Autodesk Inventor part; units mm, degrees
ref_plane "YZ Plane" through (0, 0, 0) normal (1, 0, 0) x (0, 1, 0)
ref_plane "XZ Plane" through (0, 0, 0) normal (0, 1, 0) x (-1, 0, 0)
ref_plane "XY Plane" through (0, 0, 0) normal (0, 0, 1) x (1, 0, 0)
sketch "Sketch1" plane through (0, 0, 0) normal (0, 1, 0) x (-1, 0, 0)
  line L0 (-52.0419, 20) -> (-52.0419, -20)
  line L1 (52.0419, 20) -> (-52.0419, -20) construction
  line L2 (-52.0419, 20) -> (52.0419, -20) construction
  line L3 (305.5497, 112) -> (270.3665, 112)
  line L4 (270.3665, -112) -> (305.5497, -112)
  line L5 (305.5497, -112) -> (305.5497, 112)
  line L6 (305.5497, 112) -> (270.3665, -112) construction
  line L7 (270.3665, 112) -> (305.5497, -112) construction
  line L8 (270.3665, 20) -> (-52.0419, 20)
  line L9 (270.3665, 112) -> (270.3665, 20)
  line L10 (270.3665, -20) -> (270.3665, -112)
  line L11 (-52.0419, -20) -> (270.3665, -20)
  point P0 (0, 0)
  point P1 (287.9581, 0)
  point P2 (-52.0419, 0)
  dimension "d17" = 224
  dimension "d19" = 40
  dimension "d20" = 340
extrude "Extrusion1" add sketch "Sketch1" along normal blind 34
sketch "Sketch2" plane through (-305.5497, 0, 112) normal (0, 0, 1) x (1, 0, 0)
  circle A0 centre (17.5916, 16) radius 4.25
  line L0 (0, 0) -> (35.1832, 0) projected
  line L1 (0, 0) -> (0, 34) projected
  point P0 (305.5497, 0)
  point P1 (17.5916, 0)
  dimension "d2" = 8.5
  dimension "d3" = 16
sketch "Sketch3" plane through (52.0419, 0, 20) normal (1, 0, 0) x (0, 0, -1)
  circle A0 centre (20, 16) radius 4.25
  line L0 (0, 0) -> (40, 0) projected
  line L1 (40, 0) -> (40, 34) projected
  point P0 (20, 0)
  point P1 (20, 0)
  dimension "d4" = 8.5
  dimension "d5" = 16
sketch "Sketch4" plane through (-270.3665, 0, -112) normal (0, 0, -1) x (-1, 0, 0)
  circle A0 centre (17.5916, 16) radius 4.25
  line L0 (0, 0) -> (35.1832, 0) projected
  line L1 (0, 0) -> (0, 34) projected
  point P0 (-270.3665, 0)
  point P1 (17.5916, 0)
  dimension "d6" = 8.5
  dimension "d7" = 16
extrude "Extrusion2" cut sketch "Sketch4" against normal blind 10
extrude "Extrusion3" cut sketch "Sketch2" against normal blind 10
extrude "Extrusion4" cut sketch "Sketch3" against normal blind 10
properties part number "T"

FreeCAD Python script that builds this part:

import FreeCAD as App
import Part
import Sketcher

V = App.Vector
Q = App.Units.Quantity

doc = App.newDocument("Part")
body = doc.addObject("PartDesign::Body", "Body")

sketch1 = body.newObject("Sketcher::SketchObject", "Sketch")
sketch1.AttachmentSupport = (doc.getObject("XZ_Plane"), [""])
sketch1.MapMode = "FlatFace"
sketch1.addGeometry([
    Part.LineSegment(V(-270.3665, 20, 0), V(52.0419, 20, 0)),
    Part.LineSegment(V(52.0419, 20, 0), V(52.0419, -20, 0)),
    Part.LineSegment(V(52.0419, -20, 0), V(-270.3665, -20, 0)),
    Part.LineSegment(V(-270.3665, -20, 0), V(-270.3665, -112, 0)),
    Part.LineSegment(V(-270.3665, -112, 0), V(-305.5497, -112, 0)),
    Part.LineSegment(V(-305.5497, -112, 0), V(-305.5497, 112, 0)),
    Part.LineSegment(V(-305.5497, 112, 0), V(-270.3665, 112, 0)),
    Part.LineSegment(V(-270.3665, 112, 0), V(-270.3665, 20, 0)),
], False)
sketch1.addConstraint([
    Sketcher.Constraint("Coincident", 0, 2, 1, 1),
    Sketcher.Constraint("Coincident", 1, 2, 2, 1),
    Sketcher.Constraint("Coincident", 2, 2, 3, 1),
    Sketcher.Constraint("Coincident", 3, 2, 4, 1),
    Sketcher.Constraint("Coincident", 4, 2, 5, 1),
    Sketcher.Constraint("Coincident", 5, 2, 6, 1),
    Sketcher.Constraint("Coincident", 6, 2, 7, 1),
    Sketcher.Constraint("Coincident", 7, 2, 0, 1),
    Sketcher.Constraint("Horizontal", 0),
    Sketcher.Constraint("Vertical", 1),
    Sketcher.Constraint("Horizontal", 2),
    Sketcher.Constraint("Vertical", 3),
    Sketcher.Constraint("Horizontal", 4),
    Sketcher.Constraint("Vertical", 5),
    Sketcher.Constraint("Horizontal", 6),
    Sketcher.Constraint("Vertical", 7),
    Sketcher.Constraint("Symmetric", 3, 2, 6, 2, -1),
    Sketcher.Constraint("Equal", 3, 7),
    Sketcher.Constraint("DistanceY", 1, 2, 1, 1, Q("40 mm")),
    Sketcher.Constraint("DistanceY", 5, 1, 5, 2, Q("224 mm")),
    Sketcher.Constraint("DistanceX", 0, 1, 0, 2, Q("322.4084 mm")),
    Sketcher.Constraint("DistanceX", 4, 2, 4, 1, Q("35.1832 mm")),
    Sketcher.Constraint("DistanceX", -1, 1, 0, 2, Q("52.042 mm")),
])
pad1 = body.newObject("PartDesign::Pad", "Pad")
pad1.Profile = sketch1
pad1.Length = 34
pad1.Reversed = True

sketch2 = body.newObject("Sketcher::SketchObject", "Sketch001")
sketch2.AttachmentSupport = (doc.getObject("XY_Plane"), [""])
sketch2.MapMode = "FlatFace"
sketch2.AttachmentOffset = App.Placement(V(0, 0, -112), App.Rotation())
sketch2.addGeometry(Part.Circle(V(-287.9581, 16, 0), V(0, 0, 1), 4.25), False)
sketch2.addConstraint([
    Sketcher.Constraint("Diameter", 0, Q("8.5 mm")),
    Sketcher.Constraint("DistanceY", -1, 1, 0, 3, Q("16 mm")),
    Sketcher.Constraint("DistanceX", 0, 3, -1, 1, Q("287.958 mm")),
])
pocket1 = body.newObject("PartDesign::Pocket", "Pocket")
pocket1.Profile = sketch2
pocket1.Length = 10
pocket1.Reversed = True

sketch3 = body.newObject("Sketcher::SketchObject", "Sketch002")
sketch3.AttachmentSupport = (doc.getObject("XY_Plane"), [""])
sketch3.MapMode = "FlatFace"
sketch3.AttachmentOffset = App.Placement(V(0, 0, 112), App.Rotation())
sketch3.addGeometry(Part.Circle(V(-287.9581, 16, 0), V(0, 0, 1), 4.25), False)
sketch3.addConstraint([
    Sketcher.Constraint("Diameter", 0, Q("8.5 mm")),
    Sketcher.Constraint("DistanceY", -1, 1, 0, 3, Q("16 mm")),
    Sketcher.Constraint("DistanceX", 0, 3, -1, 1, Q("287.958 mm")),
])
pocket2 = body.newObject("PartDesign::Pocket", "Pocket001")
pocket2.Profile = sketch3
pocket2.Length = 10

sketch4 = body.newObject("Sketcher::SketchObject", "Sketch003")
sketch4.AttachmentSupport = (doc.getObject("YZ_Plane"), [""])
sketch4.MapMode = "FlatFace"
sketch4.AttachmentOffset = App.Placement(V(0, 0, 52.0419), App.Rotation())
sketch4.addGeometry(Part.Circle(V(16, 0, 0), V(0, 0, 1), 4.25), False)
sketch4.addConstraint([
    Sketcher.Constraint("PointOnObject", 0, 3, -1),
    Sketcher.Constraint("Diameter", 0, Q("8.5 mm")),
    Sketcher.Constraint("DistanceX", -1, 1, 0, 3, Q("16 mm")),
])
pocket3 = body.newObject("PartDesign::Pocket", "Pocket002")
pocket3.Profile = sketch4
pocket3.Length = 10

doc.recompute()
